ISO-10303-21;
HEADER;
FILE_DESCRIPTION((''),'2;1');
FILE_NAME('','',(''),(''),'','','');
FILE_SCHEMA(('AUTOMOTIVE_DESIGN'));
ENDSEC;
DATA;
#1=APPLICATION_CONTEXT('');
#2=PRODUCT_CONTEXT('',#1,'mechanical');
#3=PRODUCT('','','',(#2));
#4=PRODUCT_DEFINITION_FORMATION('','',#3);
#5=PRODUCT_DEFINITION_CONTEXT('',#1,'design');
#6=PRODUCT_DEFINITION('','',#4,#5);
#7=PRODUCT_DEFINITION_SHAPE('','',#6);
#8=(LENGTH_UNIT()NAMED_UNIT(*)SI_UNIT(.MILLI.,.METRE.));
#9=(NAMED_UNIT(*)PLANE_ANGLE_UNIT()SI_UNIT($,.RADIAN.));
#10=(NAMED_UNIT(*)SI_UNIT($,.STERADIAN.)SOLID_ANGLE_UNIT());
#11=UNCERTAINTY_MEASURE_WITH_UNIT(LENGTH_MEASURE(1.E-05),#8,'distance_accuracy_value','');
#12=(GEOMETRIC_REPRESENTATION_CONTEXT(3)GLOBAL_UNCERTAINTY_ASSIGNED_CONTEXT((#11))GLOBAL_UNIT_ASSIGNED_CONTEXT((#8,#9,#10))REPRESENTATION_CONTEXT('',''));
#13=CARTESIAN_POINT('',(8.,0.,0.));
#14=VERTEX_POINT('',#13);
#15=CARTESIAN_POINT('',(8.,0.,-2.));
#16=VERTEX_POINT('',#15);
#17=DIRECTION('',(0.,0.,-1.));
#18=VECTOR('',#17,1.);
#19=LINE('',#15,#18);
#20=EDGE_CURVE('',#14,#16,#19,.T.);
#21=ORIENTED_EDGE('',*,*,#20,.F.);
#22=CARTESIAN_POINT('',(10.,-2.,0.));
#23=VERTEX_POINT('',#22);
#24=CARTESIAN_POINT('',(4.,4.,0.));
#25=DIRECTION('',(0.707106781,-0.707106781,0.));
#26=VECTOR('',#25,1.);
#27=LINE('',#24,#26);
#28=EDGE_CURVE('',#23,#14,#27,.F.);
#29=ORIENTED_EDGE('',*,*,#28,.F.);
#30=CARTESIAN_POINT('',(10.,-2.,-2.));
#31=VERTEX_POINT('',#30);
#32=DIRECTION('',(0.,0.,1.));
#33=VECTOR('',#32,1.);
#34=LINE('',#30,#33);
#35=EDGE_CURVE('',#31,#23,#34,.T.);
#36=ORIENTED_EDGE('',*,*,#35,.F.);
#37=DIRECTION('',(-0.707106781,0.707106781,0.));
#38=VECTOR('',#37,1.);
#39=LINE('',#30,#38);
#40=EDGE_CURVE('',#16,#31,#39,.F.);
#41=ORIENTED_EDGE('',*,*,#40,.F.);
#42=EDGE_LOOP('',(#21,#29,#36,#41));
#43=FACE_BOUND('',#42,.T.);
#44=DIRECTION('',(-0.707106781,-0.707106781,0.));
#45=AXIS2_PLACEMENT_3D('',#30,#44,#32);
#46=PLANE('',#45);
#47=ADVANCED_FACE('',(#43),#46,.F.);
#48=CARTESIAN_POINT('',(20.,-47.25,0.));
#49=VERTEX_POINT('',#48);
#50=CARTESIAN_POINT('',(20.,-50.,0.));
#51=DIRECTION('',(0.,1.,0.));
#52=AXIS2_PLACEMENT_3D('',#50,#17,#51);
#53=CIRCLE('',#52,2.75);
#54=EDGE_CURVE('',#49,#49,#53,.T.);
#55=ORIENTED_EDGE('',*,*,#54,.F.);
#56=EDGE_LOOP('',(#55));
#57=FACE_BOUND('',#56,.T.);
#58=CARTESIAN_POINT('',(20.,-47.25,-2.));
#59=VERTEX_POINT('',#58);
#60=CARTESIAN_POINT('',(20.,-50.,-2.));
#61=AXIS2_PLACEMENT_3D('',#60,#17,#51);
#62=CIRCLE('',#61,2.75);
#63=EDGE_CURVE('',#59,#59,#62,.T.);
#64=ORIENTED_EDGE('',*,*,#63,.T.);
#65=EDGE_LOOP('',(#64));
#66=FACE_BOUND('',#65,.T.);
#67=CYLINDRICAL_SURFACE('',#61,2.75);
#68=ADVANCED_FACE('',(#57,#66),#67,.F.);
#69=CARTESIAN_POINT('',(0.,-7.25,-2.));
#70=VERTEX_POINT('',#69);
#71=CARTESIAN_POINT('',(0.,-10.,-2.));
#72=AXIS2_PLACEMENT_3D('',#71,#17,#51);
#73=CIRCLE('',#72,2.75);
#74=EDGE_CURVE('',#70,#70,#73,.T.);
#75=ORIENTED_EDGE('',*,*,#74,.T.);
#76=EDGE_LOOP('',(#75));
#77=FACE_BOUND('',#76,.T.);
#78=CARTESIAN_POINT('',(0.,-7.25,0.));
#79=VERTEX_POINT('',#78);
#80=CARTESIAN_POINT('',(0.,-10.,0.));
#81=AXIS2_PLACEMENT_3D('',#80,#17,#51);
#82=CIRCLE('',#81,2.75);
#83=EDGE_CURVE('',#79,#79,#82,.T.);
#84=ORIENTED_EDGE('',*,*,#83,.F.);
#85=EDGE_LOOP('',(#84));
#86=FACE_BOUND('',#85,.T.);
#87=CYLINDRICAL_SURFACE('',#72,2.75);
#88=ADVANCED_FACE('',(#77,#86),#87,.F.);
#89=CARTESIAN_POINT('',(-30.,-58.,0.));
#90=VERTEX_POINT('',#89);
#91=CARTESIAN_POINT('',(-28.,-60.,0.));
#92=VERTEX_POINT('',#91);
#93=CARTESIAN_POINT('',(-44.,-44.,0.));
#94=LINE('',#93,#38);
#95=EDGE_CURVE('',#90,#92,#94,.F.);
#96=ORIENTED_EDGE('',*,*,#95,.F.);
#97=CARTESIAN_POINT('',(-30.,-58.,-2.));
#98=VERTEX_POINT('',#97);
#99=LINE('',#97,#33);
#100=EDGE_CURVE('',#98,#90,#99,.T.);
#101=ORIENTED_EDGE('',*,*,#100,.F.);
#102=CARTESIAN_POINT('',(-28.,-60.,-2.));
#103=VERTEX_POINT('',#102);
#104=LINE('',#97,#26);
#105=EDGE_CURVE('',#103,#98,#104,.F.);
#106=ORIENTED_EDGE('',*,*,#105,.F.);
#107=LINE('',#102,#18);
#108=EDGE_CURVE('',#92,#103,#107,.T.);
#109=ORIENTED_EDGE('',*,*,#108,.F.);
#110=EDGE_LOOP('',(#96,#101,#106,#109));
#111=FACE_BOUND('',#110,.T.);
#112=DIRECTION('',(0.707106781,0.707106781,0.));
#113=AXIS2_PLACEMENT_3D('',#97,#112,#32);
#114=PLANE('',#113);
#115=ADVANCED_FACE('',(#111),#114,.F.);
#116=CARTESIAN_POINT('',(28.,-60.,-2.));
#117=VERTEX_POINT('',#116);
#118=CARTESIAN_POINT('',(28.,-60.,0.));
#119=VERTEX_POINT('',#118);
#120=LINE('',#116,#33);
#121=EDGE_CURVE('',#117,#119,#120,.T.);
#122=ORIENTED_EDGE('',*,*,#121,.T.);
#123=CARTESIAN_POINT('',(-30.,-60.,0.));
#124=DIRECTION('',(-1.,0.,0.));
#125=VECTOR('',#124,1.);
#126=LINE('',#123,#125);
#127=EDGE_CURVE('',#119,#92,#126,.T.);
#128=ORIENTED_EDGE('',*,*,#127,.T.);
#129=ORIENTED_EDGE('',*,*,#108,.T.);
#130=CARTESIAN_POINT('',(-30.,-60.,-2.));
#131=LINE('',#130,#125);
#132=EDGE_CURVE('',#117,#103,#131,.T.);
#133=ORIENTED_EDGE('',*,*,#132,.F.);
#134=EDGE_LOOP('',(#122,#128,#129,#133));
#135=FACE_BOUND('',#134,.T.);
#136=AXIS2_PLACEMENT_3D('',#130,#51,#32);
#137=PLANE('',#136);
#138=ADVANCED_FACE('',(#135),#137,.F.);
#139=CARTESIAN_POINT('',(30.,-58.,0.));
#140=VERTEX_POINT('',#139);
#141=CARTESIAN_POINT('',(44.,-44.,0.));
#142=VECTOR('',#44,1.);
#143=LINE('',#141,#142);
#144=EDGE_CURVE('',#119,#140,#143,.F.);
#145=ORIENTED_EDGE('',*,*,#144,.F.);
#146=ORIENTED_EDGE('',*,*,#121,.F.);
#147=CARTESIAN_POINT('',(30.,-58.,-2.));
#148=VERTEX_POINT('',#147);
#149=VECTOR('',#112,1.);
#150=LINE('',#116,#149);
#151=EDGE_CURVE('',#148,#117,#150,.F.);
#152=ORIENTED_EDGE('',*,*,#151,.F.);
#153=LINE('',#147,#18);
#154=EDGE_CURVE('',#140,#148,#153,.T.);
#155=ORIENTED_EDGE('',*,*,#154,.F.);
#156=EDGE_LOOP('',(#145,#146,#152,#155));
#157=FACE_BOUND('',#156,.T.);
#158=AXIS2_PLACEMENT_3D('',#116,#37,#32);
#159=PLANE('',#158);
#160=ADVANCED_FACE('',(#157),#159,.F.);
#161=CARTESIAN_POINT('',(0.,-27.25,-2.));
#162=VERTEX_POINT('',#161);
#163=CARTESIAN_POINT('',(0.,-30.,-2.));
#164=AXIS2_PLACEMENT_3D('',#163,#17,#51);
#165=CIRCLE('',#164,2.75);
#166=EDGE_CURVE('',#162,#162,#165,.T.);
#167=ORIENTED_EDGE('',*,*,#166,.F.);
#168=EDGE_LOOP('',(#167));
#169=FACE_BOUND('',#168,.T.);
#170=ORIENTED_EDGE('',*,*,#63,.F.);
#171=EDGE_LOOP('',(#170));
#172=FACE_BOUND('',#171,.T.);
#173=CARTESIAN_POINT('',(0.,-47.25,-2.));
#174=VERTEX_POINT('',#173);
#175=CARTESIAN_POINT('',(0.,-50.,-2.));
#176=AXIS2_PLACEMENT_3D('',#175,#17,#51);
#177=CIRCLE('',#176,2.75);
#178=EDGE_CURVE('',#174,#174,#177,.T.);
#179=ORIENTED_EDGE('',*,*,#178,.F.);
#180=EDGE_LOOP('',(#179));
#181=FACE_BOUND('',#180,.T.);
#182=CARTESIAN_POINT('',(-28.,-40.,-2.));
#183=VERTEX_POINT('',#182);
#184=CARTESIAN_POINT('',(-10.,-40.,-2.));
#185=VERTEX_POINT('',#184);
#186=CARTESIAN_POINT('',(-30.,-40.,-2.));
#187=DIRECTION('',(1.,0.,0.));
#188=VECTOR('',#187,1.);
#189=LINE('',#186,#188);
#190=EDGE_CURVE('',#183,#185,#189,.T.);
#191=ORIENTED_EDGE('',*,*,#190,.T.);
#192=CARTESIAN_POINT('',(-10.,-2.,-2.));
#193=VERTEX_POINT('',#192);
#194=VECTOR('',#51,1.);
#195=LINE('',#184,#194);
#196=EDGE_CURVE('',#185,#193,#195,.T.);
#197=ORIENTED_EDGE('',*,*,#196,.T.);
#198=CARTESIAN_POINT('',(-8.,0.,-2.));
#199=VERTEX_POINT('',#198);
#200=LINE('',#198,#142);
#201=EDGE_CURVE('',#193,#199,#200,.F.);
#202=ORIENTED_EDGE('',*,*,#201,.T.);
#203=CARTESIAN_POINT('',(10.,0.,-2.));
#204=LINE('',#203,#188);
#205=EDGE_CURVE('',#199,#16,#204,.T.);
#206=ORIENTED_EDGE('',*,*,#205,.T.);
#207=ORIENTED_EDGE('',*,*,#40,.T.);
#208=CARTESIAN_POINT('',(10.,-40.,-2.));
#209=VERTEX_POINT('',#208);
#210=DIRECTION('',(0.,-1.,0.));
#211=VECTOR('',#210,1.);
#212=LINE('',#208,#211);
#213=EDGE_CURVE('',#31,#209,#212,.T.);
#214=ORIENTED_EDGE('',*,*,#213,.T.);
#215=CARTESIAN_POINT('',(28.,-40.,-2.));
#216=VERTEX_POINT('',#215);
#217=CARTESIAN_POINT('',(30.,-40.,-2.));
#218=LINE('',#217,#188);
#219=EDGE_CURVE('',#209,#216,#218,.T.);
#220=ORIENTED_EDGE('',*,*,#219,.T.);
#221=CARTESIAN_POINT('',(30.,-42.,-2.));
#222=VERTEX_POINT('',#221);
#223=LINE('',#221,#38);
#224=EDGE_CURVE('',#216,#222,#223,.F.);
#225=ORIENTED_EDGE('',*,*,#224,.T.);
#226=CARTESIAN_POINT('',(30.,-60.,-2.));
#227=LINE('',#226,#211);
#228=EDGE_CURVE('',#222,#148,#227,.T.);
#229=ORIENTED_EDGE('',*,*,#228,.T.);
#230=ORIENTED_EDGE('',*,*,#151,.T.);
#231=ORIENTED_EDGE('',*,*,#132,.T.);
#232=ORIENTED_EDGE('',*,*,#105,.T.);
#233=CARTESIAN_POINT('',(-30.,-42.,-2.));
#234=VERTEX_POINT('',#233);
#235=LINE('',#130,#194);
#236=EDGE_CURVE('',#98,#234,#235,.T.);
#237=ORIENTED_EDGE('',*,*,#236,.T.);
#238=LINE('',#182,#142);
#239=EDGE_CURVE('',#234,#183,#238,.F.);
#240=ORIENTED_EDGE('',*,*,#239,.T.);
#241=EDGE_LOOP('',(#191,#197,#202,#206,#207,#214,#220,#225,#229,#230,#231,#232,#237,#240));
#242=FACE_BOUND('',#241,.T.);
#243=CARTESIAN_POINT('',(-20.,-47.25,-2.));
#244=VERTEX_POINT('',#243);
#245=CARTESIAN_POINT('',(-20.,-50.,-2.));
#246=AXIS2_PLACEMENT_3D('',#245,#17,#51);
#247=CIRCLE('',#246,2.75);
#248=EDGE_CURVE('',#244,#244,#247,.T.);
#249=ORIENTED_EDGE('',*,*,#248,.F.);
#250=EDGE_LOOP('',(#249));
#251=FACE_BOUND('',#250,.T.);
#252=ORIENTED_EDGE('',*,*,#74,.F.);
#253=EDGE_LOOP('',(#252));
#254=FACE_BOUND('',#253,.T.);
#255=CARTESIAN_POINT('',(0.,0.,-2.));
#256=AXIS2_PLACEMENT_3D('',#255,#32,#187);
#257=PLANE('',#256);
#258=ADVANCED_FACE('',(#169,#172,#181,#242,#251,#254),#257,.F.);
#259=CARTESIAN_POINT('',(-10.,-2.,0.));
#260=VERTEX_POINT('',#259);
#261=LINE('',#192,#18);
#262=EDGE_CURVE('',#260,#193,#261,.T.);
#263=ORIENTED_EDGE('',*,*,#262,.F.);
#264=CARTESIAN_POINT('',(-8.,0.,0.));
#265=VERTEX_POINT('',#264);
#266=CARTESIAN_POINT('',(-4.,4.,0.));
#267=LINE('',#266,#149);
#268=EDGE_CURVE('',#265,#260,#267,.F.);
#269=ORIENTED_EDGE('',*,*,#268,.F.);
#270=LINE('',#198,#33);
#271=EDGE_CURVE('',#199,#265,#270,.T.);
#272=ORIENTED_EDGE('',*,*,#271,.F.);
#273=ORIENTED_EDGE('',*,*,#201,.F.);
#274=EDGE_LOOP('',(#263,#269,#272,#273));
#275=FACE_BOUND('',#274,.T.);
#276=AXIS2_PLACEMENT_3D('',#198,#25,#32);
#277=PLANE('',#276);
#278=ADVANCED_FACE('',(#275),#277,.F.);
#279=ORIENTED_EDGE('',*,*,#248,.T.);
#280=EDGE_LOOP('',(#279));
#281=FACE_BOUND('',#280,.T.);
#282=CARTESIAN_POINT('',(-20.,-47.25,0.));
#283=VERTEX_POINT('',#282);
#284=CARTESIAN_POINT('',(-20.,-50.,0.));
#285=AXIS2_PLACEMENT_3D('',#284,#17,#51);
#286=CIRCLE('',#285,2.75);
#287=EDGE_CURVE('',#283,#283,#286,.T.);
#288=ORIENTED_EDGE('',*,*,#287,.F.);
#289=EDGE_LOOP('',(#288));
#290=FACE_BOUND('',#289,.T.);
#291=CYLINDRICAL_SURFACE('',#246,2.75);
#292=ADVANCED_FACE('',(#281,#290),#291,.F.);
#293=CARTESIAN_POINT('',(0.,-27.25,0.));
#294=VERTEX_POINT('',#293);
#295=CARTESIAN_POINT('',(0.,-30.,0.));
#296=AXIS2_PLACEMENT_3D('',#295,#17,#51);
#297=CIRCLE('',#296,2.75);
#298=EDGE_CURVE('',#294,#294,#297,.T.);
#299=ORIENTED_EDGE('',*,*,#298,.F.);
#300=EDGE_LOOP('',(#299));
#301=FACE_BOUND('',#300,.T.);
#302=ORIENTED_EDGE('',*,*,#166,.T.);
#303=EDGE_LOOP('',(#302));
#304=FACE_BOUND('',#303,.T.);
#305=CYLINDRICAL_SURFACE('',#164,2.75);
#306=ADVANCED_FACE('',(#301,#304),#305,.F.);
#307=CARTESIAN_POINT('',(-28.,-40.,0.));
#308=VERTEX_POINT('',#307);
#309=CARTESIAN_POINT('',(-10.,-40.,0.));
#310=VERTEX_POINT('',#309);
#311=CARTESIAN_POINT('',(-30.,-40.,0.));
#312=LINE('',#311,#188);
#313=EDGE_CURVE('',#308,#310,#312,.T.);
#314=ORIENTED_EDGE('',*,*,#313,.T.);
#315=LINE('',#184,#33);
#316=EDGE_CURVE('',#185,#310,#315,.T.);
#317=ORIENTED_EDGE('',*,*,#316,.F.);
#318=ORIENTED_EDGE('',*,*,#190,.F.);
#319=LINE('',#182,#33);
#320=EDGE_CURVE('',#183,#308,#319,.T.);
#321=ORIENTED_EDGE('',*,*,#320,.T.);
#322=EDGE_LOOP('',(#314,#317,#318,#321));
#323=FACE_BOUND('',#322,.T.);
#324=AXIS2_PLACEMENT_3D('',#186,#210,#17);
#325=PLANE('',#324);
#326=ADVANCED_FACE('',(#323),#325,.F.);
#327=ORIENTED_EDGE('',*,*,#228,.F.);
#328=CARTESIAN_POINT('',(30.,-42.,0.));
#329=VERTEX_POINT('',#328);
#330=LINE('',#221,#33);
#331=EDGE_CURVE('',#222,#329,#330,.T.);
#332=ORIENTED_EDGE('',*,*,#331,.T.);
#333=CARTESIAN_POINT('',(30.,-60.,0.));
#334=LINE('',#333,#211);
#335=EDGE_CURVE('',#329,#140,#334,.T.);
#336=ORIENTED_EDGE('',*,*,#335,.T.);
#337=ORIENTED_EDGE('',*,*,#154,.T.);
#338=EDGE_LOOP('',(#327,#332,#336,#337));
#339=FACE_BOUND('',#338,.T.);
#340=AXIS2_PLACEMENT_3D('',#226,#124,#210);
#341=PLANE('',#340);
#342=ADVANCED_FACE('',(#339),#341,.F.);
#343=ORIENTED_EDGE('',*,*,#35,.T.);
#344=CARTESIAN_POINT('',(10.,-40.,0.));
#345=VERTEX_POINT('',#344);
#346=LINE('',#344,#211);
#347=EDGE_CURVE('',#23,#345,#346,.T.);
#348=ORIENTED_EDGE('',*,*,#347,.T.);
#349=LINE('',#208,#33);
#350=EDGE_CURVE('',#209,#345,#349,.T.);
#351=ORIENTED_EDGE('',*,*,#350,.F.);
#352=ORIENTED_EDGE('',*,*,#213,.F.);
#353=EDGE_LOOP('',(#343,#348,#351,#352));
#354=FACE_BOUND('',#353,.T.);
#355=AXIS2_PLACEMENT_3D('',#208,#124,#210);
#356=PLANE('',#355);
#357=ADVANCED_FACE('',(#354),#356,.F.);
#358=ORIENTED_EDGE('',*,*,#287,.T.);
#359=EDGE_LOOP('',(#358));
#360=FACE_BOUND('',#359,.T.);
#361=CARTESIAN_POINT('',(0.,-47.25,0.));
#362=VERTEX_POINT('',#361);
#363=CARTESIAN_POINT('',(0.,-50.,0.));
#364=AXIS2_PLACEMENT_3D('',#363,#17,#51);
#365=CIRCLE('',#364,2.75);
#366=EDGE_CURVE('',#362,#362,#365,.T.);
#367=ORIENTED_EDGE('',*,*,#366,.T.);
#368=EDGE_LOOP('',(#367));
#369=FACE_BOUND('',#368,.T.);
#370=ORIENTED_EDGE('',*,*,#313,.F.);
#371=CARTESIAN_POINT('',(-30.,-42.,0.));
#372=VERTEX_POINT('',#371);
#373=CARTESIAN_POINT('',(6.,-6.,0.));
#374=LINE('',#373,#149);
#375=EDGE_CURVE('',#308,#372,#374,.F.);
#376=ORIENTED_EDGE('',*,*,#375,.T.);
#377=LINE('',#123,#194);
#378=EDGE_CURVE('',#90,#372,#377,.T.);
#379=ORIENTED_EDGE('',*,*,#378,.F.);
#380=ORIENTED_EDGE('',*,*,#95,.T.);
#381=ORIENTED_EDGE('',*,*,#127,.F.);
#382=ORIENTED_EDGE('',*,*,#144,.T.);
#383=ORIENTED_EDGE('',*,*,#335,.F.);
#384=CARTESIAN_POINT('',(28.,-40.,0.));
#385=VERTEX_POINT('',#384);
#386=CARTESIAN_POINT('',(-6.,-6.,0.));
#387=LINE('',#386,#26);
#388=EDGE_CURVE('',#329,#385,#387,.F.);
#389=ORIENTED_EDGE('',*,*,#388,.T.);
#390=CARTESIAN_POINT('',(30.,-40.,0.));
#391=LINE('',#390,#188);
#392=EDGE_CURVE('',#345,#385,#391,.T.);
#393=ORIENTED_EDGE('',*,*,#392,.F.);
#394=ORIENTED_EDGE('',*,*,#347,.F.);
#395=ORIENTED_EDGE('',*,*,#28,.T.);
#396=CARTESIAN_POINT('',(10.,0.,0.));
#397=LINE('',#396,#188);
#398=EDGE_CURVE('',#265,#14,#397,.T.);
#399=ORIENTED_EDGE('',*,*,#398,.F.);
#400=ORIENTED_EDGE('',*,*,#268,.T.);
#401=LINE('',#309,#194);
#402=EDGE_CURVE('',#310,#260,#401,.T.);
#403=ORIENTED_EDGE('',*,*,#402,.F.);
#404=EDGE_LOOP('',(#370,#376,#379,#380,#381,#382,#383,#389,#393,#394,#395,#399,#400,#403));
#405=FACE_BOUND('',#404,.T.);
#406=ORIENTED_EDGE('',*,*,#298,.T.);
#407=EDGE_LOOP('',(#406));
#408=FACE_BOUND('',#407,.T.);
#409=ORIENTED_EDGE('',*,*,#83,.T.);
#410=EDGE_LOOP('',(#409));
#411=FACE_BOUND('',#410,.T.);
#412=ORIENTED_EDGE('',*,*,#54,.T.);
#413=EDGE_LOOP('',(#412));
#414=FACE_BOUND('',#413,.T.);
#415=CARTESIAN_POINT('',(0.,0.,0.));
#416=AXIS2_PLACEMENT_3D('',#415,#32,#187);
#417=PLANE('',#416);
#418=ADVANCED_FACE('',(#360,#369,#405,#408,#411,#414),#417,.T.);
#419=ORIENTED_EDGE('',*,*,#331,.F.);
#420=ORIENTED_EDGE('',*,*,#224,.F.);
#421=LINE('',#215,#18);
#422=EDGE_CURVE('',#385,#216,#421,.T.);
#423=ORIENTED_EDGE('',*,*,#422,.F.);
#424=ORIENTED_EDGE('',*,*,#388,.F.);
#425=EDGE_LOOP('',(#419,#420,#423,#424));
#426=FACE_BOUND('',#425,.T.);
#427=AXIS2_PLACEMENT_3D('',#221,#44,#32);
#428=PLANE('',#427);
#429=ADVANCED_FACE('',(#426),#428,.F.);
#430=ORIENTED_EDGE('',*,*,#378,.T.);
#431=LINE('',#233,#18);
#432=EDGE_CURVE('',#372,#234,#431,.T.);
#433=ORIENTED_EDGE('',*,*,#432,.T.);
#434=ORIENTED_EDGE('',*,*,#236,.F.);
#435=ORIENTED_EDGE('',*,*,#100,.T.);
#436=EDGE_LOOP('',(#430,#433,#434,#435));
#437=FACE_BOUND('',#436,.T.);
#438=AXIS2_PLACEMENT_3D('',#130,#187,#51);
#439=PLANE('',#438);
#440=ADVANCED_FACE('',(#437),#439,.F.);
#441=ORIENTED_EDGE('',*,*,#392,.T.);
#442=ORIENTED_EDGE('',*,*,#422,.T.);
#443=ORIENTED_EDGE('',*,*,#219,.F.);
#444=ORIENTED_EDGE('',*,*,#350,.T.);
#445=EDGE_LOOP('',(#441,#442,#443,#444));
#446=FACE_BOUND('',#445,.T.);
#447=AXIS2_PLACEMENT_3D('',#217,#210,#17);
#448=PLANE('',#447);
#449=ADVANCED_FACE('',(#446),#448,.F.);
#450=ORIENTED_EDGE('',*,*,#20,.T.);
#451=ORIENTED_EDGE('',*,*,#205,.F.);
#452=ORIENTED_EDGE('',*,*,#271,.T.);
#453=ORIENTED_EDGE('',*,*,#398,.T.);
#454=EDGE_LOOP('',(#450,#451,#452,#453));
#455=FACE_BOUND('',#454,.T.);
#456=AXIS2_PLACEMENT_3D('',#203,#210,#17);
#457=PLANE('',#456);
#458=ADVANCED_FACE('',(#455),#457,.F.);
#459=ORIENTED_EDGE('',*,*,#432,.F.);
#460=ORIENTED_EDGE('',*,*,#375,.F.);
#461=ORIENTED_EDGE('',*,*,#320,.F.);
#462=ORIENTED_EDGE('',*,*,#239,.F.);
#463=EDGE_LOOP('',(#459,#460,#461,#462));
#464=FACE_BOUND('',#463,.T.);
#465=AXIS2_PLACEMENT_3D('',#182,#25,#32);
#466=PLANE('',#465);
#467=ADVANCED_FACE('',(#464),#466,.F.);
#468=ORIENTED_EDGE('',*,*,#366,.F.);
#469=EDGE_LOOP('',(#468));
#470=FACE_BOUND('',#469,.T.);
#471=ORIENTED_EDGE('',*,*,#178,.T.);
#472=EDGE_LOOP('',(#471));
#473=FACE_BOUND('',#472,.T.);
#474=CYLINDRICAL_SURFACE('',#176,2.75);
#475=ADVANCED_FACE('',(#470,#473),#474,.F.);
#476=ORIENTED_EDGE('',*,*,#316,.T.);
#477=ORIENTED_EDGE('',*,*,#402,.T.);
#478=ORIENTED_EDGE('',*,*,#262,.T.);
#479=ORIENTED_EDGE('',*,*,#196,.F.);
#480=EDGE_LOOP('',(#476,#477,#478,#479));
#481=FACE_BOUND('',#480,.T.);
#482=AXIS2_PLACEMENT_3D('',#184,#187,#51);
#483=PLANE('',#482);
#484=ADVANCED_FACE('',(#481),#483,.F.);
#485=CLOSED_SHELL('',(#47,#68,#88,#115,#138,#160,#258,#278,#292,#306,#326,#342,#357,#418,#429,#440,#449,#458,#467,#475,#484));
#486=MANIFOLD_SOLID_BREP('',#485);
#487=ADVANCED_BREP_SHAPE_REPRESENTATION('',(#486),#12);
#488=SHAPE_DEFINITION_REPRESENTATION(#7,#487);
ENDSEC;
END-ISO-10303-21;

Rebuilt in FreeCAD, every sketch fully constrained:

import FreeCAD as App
import Part
import Sketcher
from FreeCAD import Vector
Q = App.Units.Quantity


def edges_at(feature, points):
    """Names of the edges that pass closest to the given points."""
    edges = feature.Shape.Edges
    near = lambda p: min(range(len(edges)), key=lambda i: edges[i].distToShape(Part.Vertex(*p))[0])
    return sorted({f"Edge{near(p) + 1}" for p in points})

doc = App.newDocument("Part")
body = doc.addObject("PartDesign::Body", "Body")

# Sketch on XY plane
sketch1 = body.newObject("Sketcher::SketchObject", "Sketch")
sketch1.AttachmentSupport = (doc.getObject("XY_Plane"), [""])
sketch1.MapMode = "FlatFace"
sketch1.addGeometry([
    Part.LineSegment(Vector(30, -60, 0), Vector(-30, -60, 0)),  # 0
    Part.LineSegment(Vector(-30, -60, 0), Vector(-30, -40, 0)),  # 1
    Part.LineSegment(Vector(-30, -40, 0), Vector(-10, -40, 0)),  # 2
    Part.LineSegment(Vector(-10, -40, 0), Vector(-10, 0, 0)),  # 3
    Part.LineSegment(Vector(-10, 0, 0), Vector(10, 0, 0)),  # 4
    Part.LineSegment(Vector(10, 0, 0), Vector(10, -40, 0)),  # 5
    Part.LineSegment(Vector(10, -40, 0), Vector(30, -40, 0)),  # 6
    Part.LineSegment(Vector(30, -40, 0), Vector(30, -60, 0)),  # 7
], False)
sketch1.addConstraint([
    Sketcher.Constraint("Coincident", 0, 2, 1, 1),
    Sketcher.Constraint("Coincident", 1, 2, 2, 1),
    Sketcher.Constraint("Coincident", 2, 2, 3, 1),
    Sketcher.Constraint("Coincident", 3, 2, 4, 1),
    Sketcher.Constraint("Coincident", 4, 2, 5, 1),
    Sketcher.Constraint("Coincident", 5, 2, 6, 1),
    Sketcher.Constraint("Coincident", 6, 2, 7, 1),
    Sketcher.Constraint("Coincident", 7, 2, 0, 1),
    Sketcher.Constraint("Horizontal", 0),
    Sketcher.Constraint("Vertical", 1),
    Sketcher.Constraint("Horizontal", 2),
    Sketcher.Constraint("Vertical", 3),
    Sketcher.Constraint("Horizontal", 4),
    Sketcher.Constraint("Vertical", 5),
    Sketcher.Constraint("Horizontal", 6),
    Sketcher.Constraint("Vertical", 7),
    Sketcher.Constraint("Symmetric", 3, 2, 4, 2, -1, 1),
    Sketcher.Constraint("Symmetric", 1, 2, 6, 2, -2),
    Sketcher.Constraint("Equal", 2, 4),
    Sketcher.Constraint("Equal", 6, 1),
    Sketcher.Constraint("DistanceX", 0, 2, 0, 1, Q("60 mm")),
    Sketcher.Constraint("DistanceY", 3, 1, 3, 2, Q("40 mm")),
])
pad1 = body.newObject("PartDesign::Pad", "Pad")
pad1.Profile = sketch1
pad1.Length = 2
pad1.Reversed = True

# Sketch on XY plane
sketch2 = body.newObject("Sketcher::SketchObject", "Sketch001")
sketch2.AttachmentSupport = (doc.getObject("XY_Plane"), [""])
sketch2.MapMode = "FlatFace"
sketch2.AttachmentOffset = App.Placement(Vector(0, 0, -2), App.Rotation())
sketch2.addGeometry([
    Part.Circle(Vector(0, -10, 0), Vector(0, 0, 1), 2.75),  # 0
    Part.Circle(Vector(0, -50, 0), Vector(0, 0, 1), 2.75),  # 1
    Part.Circle(Vector(-20, -50, 0), Vector(0, 0, 1), 2.75),  # 2
    Part.Circle(Vector(20, -50, 0), Vector(0, 0, 1), 2.75),  # 3
    Part.Circle(Vector(0, -30, 0), Vector(0, 0, 1), 2.75),  # 4
], False)
sketch2.addConstraint([
    Sketcher.Constraint("Equal", 0, 1),
    Sketcher.Constraint("Equal", 1, 2),
    Sketcher.Constraint("Equal", 2, 3),
    Sketcher.Constraint("Equal", 3, 4),
    Sketcher.Constraint("Symmetric", 2, 3, 3, 3, -2),
    Sketcher.Constraint("PointOnObject", 0, 3, -2),
    Sketcher.Constraint("PointOnObject", 1, 3, -2),
    Sketcher.Constraint("PointOnObject", 4, 3, -2),
    Sketcher.Constraint("Horizontal", 1, 3, 2, 3),
    Sketcher.Constraint("Diameter", 0, Q("5.5 mm")),
    Sketcher.Constraint("DistanceY", 0, 3, -1, 1, Q("10 mm")),
    Sketcher.Constraint("DistanceY", 1, 3, -1, 1, Q("50 mm")),
    Sketcher.Constraint("DistanceX", 2, 3, -1, 1, Q("20 mm")),
    Sketcher.Constraint("DistanceY", 4, 3, -1, 1, Q("30 mm")),
])
doc.recompute()
hole = body.newObject("PartDesign::Hole", "Hole")
hole.Profile = sketch2
hole.ThreadType = "None"
hole.Diameter = 5.5
hole.DepthType = "ThroughAll"
hole.Reversed = True
doc.recompute()

chamfer = body.newObject("PartDesign::Chamfer", "Chamfer")
chamfer.Base = (hole, edges_at(hole, [
    (-30, -40, -1),
    (-30, -60, -1),
    (30, -60, -1),
    (30, -40, -1),
    (10, 0, -1),
    (-10, 0, -1),
]))
chamfer.Size = 2

doc.recompute()
